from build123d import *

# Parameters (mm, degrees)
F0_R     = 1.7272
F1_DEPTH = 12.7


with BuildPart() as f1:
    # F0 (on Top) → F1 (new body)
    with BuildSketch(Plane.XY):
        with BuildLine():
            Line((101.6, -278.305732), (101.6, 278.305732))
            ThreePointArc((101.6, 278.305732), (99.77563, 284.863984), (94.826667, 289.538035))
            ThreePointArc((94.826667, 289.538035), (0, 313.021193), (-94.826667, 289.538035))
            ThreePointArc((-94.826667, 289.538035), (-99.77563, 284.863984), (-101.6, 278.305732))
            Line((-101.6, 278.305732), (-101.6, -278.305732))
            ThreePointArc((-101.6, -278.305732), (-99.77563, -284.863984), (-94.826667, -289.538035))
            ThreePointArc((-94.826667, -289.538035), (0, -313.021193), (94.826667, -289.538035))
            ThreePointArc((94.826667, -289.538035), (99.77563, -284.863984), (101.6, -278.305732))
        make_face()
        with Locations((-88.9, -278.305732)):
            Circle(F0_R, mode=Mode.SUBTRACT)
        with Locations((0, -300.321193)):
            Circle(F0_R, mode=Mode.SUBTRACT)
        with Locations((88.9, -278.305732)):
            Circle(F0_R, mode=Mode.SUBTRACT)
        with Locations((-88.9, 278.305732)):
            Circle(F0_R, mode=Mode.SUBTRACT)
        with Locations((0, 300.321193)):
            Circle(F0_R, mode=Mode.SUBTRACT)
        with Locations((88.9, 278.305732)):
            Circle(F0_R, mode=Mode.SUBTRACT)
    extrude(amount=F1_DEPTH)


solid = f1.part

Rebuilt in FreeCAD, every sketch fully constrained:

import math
import FreeCAD as App
import Part
import Sketcher
from FreeCAD import Vector
Q = App.Units.Quantity

doc = App.newDocument("Part")
body = doc.addObject("PartDesign::Body", "Body")

# Sketch on XY plane
sketch1 = body.newObject("Sketcher::SketchObject", "Sketch")
sketch1.AttachmentSupport = (doc.getObject("XY_Plane"), [""])
sketch1.MapMode = "FlatFace"
sketch1.addGeometry(Part.LineSegment(Vector(101.6, -278.3, 0), Vector(101.6, 278.3, 0)), False)
sketch1.addGeometry(Part.ArcOfCircle(Part.Circle(Vector(88.9, 278.3, 0), Vector(0, 0, 1), 12.7), math.radians(0), math.radians(62)), False)
sketch1.addGeometry(Part.ArcOfCircle(Part.Circle(Vector(0, 109.8, 0), Vector(0, 0, 1), 203.2), math.radians(62), math.radians(118)), False)
sketch1.addGeometry(Part.ArcOfCircle(Part.Circle(Vector(-88.9, 278.3, 0), Vector(0, 0, 1), 12.7), math.radians(118), math.radians(180)), False)
sketch1.addGeometry(Part.LineSegment(Vector(-101.6, 278.3, 0), Vector(-101.6, -278.3, 0)), False)
sketch1.addGeometry(Part.ArcOfCircle(Part.Circle(Vector(-88.9, -278.3, 0), Vector(0, 0, 1), 12.7), math.radians(-180), math.radians(-118)), False)
sketch1.addGeometry(Part.ArcOfCircle(Part.Circle(Vector(0, -109.8, 0), Vector(0, 0, 1), 203.2), math.radians(-118), math.radians(-62)), False)
sketch1.addGeometry(Part.ArcOfCircle(Part.Circle(Vector(88.9, -278.3, 0), Vector(0, 0, 1), 12.7), math.radians(-62), math.radians(0)), False)
sketch1.addGeometry(Part.Circle(Vector(-88.9, -278.3, 0), Vector(0, 0, 1), 1.7), False)
sketch1.addGeometry(Part.Circle(Vector(0, -300.3, 0), Vector(0, 0, 1), 1.7), False)
sketch1.addGeometry(Part.Circle(Vector(88.9, -278.3, 0), Vector(0, 0, 1), 1.7), False)
sketch1.addGeometry(Part.Circle(Vector(-88.9, 278.3, 0), Vector(0, 0, 1), 1.7), False)
sketch1.addGeometry(Part.Circle(Vector(0, 300.3, 0), Vector(0, 0, 1), 1.7), False)
sketch1.addGeometry(Part.Circle(Vector(88.9, 278.3, 0), Vector(0, 0, 1), 1.7), False)
sketch1.addConstraint(Sketcher.Constraint("Tangent", 0, 2, 1, 1))
sketch1.addConstraint(Sketcher.Constraint("Tangent", 1, 2, 2, 1))
sketch1.addConstraint(Sketcher.Constraint("Tangent", 2, 2, 3, 1))
sketch1.addConstraint(Sketcher.Constraint("Tangent", 3, 2, 4, 1))
sketch1.addConstraint(Sketcher.Constraint("Tangent", 4, 2, 5, 1))
sketch1.addConstraint(Sketcher.Constraint("Tangent", 5, 2, 6, 1))
sketch1.addConstraint(Sketcher.Constraint("Tangent", 6, 2, 7, 1))
sketch1.addConstraint(Sketcher.Constraint("Tangent", 7, 2, 0, 1))
sketch1.addConstraint(Sketcher.Constraint("Vertical", 0))
sketch1.addConstraint(Sketcher.Constraint("Vertical", 4))
sketch1.addConstraint(Sketcher.Constraint("Coincident", 8, 3, 5, 3))
sketch1.addConstraint(Sketcher.Constraint("Coincident", 10, 3, 7, 3))
sketch1.addConstraint(Sketcher.Constraint("Coincident", 11, 3, 3, 3))
sketch1.addConstraint(Sketcher.Constraint("Coincident", 13, 3, 1, 3))
sketch1.addConstraint(Sketcher.Constraint("Equal", 1, 3))
sketch1.addConstraint(Sketcher.Constraint("Equal", 3, 5))
sketch1.addConstraint(Sketcher.Constraint("Equal", 2, 6))
sketch1.addConstraint(Sketcher.Constraint("Equal", 5, 7))
sketch1.addConstraint(Sketcher.Constraint("Equal", 8, 9))
sketch1.addConstraint(Sketcher.Constraint("Equal", 9, 10))
sketch1.addConstraint(Sketcher.Constraint("Equal", 10, 11))
sketch1.addConstraint(Sketcher.Constraint("Equal", 11, 12))
sketch1.addConstraint(Sketcher.Constraint("Equal", 12, 13))
sketch1.addConstraint(Sketcher.Constraint("Symmetric", 1, 3, 5, 3, -1, 1))
sketch1.addConstraint(Sketcher.Constraint("Symmetric", 9, 3, 12, 3, -1, 1))
sketch1.addConstraint(Sketcher.Constraint("Symmetric", 2, 3, 6, 3, -1))
sketch1.addConstraint(Sketcher.Constraint("PointOnObject", 9, 3, -2))
sketch1.addConstraint(Sketcher.Constraint("Radius", 2, Q("8.0000001 in")))
sketch1.addConstraint(Sketcher.Constraint("Radius", 1, Q("0.5000001 in")))
sketch1.addConstraint(Sketcher.Constraint("Diameter", 8, Q("0.136 in")))
sketch1.addConstraint(Sketcher.Constraint("DistanceX", -1, 1, 0, 2, Q("4 in")))
sketch1.addConstraint(Sketcher.Constraint("DistanceY", 9, 3, 6, 3, Q("7.5000001 in")))
sketch1.addConstraint(Sketcher.Constraint("DistanceY", 0, 1, 0, 2, Q("556.611464 mm")))
pad1 = body.newObject("PartDesign::Pad", "Pad")
pad1.Profile = sketch1
pad1.Length = Q("0.5 in")

doc.recompute()
